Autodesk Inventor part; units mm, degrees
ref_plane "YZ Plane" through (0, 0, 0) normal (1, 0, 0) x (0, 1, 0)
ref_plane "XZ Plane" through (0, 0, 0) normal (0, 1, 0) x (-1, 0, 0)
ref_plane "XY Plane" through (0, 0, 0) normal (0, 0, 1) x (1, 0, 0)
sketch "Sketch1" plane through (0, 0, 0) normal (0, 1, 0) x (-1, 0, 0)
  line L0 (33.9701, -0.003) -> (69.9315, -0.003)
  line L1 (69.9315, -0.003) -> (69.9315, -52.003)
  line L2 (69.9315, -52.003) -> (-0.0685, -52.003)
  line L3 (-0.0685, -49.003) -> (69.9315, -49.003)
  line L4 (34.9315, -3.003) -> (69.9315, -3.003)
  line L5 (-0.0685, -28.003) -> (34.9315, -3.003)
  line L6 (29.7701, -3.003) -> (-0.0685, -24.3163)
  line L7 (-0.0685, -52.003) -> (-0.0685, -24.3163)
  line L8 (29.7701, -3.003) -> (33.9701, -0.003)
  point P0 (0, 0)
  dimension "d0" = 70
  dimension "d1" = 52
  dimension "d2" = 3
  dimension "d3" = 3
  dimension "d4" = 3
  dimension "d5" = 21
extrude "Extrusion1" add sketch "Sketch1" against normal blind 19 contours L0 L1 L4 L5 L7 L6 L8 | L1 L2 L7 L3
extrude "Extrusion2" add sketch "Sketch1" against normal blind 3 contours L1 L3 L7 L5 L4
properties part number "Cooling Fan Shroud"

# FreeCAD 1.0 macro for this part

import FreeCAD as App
import Part
import Sketcher

V = App.Vector

doc = App.newDocument("Part")
body = doc.addObject("PartDesign::Body", "Body")
body.AllowCompound = True

# Sketch on XZ plane
sketch1 = doc.addObject("Sketcher::SketchObject", "Sketch")
body.addObject(sketch1)
sketch1.AttachmentSupport = (doc.XZ_Plane, [""])
sketch1.MapMode = "FlatFace"
sketch1.addGeometry([
    Part.LineSegment(V(-69.9, 0, 0), V(-34, 0, 0)),  # 0
    Part.LineSegment(V(-34, 0, 0), V(-29.8, -3, 0)),  # 1
    Part.LineSegment(V(-29.8, -3, 0), V(0.1, -24.3, 0)),  # 2
    Part.LineSegment(V(0.1, -24.3, 0), V(0.1, -28, 0)),  # 3
    Part.LineSegment(V(0.1, -28, 0), V(-34.9, -3, 0)),  # 4
    Part.LineSegment(V(-34.9, -3, 0), V(-69.9, -3, 0)),  # 5
    Part.LineSegment(V(-69.9, -3, 0), V(-69.9, 0, 0)),  # 6
    Part.LineSegment(V(-69.9, -52, 0), V(-69.9, -49, 0)),  # 7
    Part.LineSegment(V(-69.9, -49, 0), V(0.1, -49, 0)),  # 8
    Part.LineSegment(V(0.1, -49, 0), V(0.1, -52, 0)),  # 9
    Part.LineSegment(V(0.1, -52, 0), V(-69.9, -52, 0)),  # 10
], False)
sketch1.addConstraint([
    Sketcher.Constraint("Coincident", 0, 2, 1, 1),
    Sketcher.Constraint("Coincident", 1, 2, 2, 1),
    Sketcher.Constraint("Coincident", 2, 2, 3, 1),
    Sketcher.Constraint("Coincident", 3, 2, 4, 1),
    Sketcher.Constraint("Coincident", 4, 2, 5, 1),
    Sketcher.Constraint("Coincident", 5, 2, 6, 1),
    Sketcher.Constraint("Coincident", 6, 2, 0, 1),
    Sketcher.Constraint("Coincident", 7, 2, 8, 1),
    Sketcher.Constraint("Coincident", 8, 2, 9, 1),
    Sketcher.Constraint("Coincident", 9, 2, 10, 1),
    Sketcher.Constraint("Coincident", 10, 2, 7, 1),
    Sketcher.Constraint("Horizontal", 0),
    Sketcher.Constraint("Vertical", 3),
    Sketcher.Constraint("Horizontal", 5),
    Sketcher.Constraint("Vertical", 6),
    Sketcher.Constraint("Vertical", 7),
    Sketcher.Constraint("Horizontal", 8),
    Sketcher.Constraint("Vertical", 9),
    Sketcher.Constraint("Horizontal", 10),
    Sketcher.Constraint("Parallel", 1, 2),
    Sketcher.Constraint("Parallel", 2, 4),
    Sketcher.Constraint("Horizontal", 1, 2, 4, 2),
    Sketcher.Constraint("Vertical", 6, 2, 7, 2),
    Sketcher.Constraint("Vertical", 3, 2, 8, 2),
    Sketcher.Constraint("Equal", 6, 7),
    Sketcher.Constraint("DistanceX", 8, 1, 8, 2, 70.0),
    Sketcher.Constraint("DistanceY", 6, 1, 6, 2, 3.0),
    Sketcher.Constraint("DistanceY", 8, 2, 3, 2, 21.0),
    Sketcher.Constraint("DistanceY", 10, 2, 6, 2, 52.0),
    Sketcher.Constraint("DistanceX", 5, 2, 5, 1, 35.0),
    Sketcher.Constraint("DistanceX", 0, 2, -1, 1, 33.97),
    Sketcher.Constraint("DistanceX", 0, 1, 0, 2, 35.9614),
    Sketcher.Constraint("DistanceY", 0, 2, -1, 1, 0.003),
])
pad1 = doc.addObject("PartDesign::Pad", "Pad")
body.addObject(pad1)
pad1.Profile = sketch1
pad1.Length = 19

# Sketch on XZ plane
sketch2 = doc.addObject("Sketcher::SketchObject", "Sketch001")
body.addObject(sketch2)
sketch2.AttachmentSupport = (doc.XZ_Plane, [""])
sketch2.MapMode = "FlatFace"
sketch2.addGeometry([
    Part.LineSegment(V(-70, -49, 0), V(-70, -3, 0)),  # 0
    Part.LineSegment(V(-70, -3, 0), V(-35, -3, 0)),  # 1
    Part.LineSegment(V(-35, -3, 0), V(0, -28, 0)),  # 2
    Part.LineSegment(V(0, -28, 0), V(0, -49, 0)),  # 3
    Part.LineSegment(V(0, -49, 0), V(-70, -49, 0)),  # 4
], False)
sketch2.addConstraint([
    Sketcher.Constraint("Coincident", 0, 2, 1, 1),
    Sketcher.Constraint("Coincident", 1, 2, 2, 1),
    Sketcher.Constraint("Coincident", 2, 2, 3, 1),
    Sketcher.Constraint("Coincident", 3, 2, 4, 1),
    Sketcher.Constraint("Coincident", 4, 2, 0, 1),
    Sketcher.Constraint("Vertical", 0),
    Sketcher.Constraint("Horizontal", 1),
    Sketcher.Constraint("Vertical", 3),
    Sketcher.Constraint("Horizontal", 4),
    Sketcher.Constraint("DistanceX", 4, 2, 4, 1, 70.0),
    Sketcher.Constraint("DistanceY", 3, 2, 3, 1, 21.0),
    Sketcher.Constraint("DistanceX", 1, 1, 1, 2, 35.0),
    Sketcher.Constraint("DistanceY", 0, 1, 0, 2, 46.0),
    Sketcher.Constraint("DistanceY", 0, 2, -1, 1, 3.003),
    Sketcher.Constraint("DistanceX", 0, 2, -1, 1, 69.9315),
])
pad2 = doc.addObject("PartDesign::Pad", "Pad001")
body.addObject(pad2)
pad2.Profile = sketch2
pad2.Length = 3

doc.recompute()
